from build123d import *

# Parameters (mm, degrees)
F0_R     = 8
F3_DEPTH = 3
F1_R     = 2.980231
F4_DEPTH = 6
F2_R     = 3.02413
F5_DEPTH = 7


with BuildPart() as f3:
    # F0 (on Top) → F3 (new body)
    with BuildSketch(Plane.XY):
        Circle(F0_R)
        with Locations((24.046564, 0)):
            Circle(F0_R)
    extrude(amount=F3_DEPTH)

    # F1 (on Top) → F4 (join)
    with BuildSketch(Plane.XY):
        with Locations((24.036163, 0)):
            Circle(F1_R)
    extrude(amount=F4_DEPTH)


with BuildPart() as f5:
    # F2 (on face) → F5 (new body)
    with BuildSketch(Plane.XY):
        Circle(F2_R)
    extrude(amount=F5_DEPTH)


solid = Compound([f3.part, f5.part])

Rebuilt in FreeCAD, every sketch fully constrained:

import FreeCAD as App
import Part
import Sketcher
from FreeCAD import Vector
Q = App.Units.Quantity

doc = App.newDocument("Part")
body = doc.addObject("PartDesign::Body", "Body")
body.AllowCompound = True

# Sketch on XY plane
sketch1 = doc.addObject("Sketcher::SketchObject", "Sketch")
body.addObject(sketch1)
sketch1.AttachmentSupport = (doc.XY_Plane, [""])
sketch1.MapMode = "FlatFace"
sketch1.addGeometry(Part.Circle(Vector(0, 0, 0), Vector(0, 0, 1), 8), False)
sketch1.addGeometry(Part.Circle(Vector(24, 0, 0), Vector(0, 0, 1), 8), False)
sketch1.addConstraint(Sketcher.Constraint("Coincident", 0, 3, -1, 1))
sketch1.addConstraint(Sketcher.Constraint("Equal", 0, 1))
sketch1.addConstraint(Sketcher.Constraint("PointOnObject", 1, 3, -1))
sketch1.addConstraint(Sketcher.Constraint("Diameter", 0, Q("16 mm")))
sketch1.addConstraint(Sketcher.Constraint("DistanceX", -1, 1, 1, 3, Q("24.046564 mm")))
pad1 = doc.addObject("PartDesign::Pad", "Pad")
body.addObject(pad1)
pad1.Profile = sketch1
pad1.Length = 3

# Sketch on XY plane
sketch2 = doc.addObject("Sketcher::SketchObject", "Sketch001")
body.addObject(sketch2)
sketch2.AttachmentSupport = (doc.XY_Plane, [""])
sketch2.MapMode = "FlatFace"
sketch2.addGeometry(Part.Circle(Vector(24, 0, 0), Vector(0, 0, 1), 3), False)
sketch2.addConstraint(Sketcher.Constraint("PointOnObject", 0, 3, -1))
sketch2.addConstraint(Sketcher.Constraint("Diameter", 0, Q("5.960462 mm")))
sketch2.addConstraint(Sketcher.Constraint("DistanceX", -1, 1, 0, 3, Q("24.036163 mm")))
pad2 = doc.addObject("PartDesign::Pad", "Pad001")
body.addObject(pad2)
pad2.Profile = sketch2
pad2.Length = 6
body2 = doc.addObject("PartDesign::Body", "Body001")

# Sketch on XY plane
sketch3 = doc.addObject("Sketcher::SketchObject", "Sketch002")
body2.addObject(sketch3)
sketch3.AttachmentSupport = (doc.getObject("XY_Plane001"), [""])
sketch3.MapMode = "FlatFace"
sketch3.addGeometry(Part.Circle(Vector(0, 0, 0), Vector(0, 0, 1), 3), False)
sketch3.addConstraint(Sketcher.Constraint("Coincident", 0, 3, -1, 1))
sketch3.addConstraint(Sketcher.Constraint("Diameter", 0, Q("6.04826 mm")))
pad3 = doc.addObject("PartDesign::Pad", "Pad002")
body2.addObject(pad3)
pad3.Profile = sketch3
pad3.Length = 7

doc.recompute()
